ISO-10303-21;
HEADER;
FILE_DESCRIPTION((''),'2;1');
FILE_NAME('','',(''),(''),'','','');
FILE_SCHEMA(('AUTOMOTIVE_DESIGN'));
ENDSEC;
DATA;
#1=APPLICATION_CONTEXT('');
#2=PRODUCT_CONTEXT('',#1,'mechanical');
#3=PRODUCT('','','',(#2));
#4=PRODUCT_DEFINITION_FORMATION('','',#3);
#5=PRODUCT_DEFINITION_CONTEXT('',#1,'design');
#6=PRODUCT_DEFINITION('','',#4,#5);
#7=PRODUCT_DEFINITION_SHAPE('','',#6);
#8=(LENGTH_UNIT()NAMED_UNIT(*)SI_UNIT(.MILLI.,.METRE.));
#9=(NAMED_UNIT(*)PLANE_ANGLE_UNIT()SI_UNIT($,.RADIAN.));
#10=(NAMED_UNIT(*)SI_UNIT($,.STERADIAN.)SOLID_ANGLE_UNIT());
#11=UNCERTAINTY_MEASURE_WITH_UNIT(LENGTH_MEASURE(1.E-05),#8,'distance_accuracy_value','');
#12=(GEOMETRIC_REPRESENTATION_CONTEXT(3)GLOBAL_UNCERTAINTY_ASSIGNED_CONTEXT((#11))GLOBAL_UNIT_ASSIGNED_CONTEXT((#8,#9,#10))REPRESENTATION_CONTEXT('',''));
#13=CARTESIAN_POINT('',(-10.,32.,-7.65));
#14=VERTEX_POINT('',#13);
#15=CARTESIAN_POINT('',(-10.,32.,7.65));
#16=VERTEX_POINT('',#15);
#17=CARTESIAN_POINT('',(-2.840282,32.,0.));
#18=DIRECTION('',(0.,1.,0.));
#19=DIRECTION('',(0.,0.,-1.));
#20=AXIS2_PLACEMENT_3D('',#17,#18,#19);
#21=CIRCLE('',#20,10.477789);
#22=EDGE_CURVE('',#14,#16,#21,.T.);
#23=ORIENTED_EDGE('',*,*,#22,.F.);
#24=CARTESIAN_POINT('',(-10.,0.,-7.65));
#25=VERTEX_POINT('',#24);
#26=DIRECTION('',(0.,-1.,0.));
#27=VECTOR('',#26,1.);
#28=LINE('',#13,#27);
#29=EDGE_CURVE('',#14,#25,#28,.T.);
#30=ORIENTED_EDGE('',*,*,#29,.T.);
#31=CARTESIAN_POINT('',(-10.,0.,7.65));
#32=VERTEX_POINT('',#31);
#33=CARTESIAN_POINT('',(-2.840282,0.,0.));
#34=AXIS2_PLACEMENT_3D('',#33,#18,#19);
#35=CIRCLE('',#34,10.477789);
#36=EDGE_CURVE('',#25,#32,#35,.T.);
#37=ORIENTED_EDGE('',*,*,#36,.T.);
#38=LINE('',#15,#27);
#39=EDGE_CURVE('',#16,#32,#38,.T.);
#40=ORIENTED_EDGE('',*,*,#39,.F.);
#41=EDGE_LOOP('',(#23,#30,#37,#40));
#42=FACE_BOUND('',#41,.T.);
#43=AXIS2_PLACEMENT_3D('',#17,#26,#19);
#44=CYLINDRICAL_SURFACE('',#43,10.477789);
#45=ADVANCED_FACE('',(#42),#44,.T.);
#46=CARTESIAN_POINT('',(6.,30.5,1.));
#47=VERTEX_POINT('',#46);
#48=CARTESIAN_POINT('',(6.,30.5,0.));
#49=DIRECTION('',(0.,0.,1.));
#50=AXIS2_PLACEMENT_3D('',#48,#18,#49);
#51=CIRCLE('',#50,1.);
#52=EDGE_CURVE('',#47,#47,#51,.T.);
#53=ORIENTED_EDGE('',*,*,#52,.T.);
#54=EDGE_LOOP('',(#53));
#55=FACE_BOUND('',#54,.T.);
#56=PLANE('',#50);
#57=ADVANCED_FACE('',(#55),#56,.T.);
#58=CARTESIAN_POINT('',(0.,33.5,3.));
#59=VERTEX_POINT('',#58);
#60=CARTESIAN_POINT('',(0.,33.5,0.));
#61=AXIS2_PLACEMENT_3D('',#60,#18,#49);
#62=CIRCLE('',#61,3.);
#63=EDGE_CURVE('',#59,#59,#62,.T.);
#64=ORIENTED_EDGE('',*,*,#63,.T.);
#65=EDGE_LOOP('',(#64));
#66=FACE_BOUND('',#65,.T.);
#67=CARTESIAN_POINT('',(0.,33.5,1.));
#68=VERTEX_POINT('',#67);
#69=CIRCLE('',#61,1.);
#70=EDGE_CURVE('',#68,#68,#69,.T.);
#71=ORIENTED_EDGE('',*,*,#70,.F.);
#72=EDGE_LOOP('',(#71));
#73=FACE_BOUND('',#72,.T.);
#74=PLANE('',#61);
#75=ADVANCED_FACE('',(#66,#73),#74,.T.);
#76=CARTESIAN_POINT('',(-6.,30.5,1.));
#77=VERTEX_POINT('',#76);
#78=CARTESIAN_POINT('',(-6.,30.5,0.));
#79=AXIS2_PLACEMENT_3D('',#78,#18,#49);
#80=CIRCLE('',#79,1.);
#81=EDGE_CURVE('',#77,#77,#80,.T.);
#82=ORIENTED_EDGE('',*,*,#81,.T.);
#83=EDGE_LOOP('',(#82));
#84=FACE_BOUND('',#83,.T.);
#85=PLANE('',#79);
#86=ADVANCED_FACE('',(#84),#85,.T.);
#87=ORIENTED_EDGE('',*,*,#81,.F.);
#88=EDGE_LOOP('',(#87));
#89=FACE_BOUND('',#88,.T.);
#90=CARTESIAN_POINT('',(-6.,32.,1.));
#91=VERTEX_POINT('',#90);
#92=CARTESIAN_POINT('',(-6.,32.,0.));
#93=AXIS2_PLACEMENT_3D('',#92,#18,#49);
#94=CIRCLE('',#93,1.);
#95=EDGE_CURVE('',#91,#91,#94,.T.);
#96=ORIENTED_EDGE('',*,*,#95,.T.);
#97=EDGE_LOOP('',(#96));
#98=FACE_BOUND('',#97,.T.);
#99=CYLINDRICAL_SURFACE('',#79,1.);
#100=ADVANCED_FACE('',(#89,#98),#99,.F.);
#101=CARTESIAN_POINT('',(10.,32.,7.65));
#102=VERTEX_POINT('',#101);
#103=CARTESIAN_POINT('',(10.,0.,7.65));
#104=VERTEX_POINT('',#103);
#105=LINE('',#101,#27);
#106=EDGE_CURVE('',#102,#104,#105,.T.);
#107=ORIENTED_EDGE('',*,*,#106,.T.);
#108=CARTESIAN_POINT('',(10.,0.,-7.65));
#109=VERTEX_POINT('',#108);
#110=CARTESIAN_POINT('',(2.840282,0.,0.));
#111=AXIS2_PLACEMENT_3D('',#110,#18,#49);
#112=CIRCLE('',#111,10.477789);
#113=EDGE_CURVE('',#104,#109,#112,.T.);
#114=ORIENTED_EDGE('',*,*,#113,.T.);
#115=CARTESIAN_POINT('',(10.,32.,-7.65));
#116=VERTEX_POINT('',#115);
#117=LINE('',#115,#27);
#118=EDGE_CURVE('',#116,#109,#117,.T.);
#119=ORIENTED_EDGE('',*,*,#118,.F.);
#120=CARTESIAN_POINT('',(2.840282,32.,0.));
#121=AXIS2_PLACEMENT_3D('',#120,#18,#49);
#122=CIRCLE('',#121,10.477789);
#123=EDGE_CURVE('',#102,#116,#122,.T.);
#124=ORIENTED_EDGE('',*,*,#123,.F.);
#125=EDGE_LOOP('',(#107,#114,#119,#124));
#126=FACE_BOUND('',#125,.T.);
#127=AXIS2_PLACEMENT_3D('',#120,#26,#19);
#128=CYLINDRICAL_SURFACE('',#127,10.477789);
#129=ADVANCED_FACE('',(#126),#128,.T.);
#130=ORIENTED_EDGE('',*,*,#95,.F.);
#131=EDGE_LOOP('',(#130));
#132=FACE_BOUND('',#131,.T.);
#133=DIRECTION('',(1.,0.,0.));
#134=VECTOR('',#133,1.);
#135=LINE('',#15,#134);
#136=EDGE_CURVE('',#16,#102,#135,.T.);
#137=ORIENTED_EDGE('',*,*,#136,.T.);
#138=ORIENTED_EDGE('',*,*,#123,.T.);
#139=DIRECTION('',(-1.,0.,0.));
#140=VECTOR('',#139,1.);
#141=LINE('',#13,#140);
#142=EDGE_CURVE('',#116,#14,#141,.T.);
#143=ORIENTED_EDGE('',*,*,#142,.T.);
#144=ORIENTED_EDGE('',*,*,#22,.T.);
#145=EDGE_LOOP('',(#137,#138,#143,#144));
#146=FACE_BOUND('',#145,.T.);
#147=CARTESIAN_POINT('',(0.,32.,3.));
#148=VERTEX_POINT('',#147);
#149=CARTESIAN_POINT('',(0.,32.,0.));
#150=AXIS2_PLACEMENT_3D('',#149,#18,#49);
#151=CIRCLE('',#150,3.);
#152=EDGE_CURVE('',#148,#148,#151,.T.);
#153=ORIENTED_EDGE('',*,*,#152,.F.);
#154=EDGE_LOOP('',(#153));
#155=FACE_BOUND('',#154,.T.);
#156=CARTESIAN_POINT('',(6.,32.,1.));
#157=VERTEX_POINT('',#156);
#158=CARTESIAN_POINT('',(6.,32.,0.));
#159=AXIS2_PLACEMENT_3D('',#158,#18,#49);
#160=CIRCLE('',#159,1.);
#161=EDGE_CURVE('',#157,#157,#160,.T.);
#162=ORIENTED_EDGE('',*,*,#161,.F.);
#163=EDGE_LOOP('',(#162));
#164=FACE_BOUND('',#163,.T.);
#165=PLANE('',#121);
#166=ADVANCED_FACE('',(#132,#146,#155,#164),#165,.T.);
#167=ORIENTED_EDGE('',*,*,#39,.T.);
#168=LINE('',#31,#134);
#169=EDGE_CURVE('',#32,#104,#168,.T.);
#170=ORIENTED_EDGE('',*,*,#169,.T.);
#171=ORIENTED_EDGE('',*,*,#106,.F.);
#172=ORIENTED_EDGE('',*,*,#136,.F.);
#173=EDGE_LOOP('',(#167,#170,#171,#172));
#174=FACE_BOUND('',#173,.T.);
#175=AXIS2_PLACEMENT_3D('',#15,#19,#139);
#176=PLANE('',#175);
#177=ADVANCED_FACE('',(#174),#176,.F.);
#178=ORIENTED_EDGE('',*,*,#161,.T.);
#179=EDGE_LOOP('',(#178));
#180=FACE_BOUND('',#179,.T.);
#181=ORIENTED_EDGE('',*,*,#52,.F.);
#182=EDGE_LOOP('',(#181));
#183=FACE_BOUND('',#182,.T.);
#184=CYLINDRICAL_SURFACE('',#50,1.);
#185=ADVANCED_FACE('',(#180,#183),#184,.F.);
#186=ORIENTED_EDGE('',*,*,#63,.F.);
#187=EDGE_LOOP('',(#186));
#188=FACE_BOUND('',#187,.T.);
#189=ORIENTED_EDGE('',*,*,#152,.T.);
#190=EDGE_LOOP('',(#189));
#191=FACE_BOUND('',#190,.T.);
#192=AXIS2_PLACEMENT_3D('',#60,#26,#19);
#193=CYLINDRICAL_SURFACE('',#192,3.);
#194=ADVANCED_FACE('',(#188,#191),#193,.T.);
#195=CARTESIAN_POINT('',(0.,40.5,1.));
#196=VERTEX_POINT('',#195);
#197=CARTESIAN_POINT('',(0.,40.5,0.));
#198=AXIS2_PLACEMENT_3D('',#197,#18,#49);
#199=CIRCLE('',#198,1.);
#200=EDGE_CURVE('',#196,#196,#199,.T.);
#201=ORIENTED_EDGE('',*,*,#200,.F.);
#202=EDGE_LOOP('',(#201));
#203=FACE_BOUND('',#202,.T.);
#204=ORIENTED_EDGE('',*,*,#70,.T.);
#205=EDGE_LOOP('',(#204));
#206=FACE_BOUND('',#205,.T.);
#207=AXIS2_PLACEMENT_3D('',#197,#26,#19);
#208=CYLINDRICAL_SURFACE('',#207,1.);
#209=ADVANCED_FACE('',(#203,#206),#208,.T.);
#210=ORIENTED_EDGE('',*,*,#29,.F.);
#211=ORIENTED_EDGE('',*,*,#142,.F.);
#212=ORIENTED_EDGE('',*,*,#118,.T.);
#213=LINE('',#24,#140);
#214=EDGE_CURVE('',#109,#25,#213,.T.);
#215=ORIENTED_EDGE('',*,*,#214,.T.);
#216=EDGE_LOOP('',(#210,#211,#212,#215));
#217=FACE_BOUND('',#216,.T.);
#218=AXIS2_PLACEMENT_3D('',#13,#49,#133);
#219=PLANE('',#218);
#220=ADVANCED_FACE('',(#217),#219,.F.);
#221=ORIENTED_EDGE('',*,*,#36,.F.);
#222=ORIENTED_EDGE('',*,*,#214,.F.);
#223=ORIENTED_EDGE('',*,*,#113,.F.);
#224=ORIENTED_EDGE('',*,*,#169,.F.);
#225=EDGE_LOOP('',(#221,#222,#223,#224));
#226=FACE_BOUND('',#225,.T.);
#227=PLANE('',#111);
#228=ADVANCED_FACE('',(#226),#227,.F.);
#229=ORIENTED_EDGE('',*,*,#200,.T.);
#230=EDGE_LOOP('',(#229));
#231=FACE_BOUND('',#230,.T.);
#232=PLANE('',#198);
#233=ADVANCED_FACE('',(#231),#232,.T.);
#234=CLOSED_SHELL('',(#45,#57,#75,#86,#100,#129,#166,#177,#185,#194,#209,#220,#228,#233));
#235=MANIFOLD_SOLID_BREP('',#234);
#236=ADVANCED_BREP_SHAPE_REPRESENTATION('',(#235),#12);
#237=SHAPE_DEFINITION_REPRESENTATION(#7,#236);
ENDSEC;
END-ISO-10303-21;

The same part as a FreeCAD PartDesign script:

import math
import FreeCAD as App
import Part
import Sketcher
Q = App.Units.Quantity

doc = App.newDocument("Part")
body = doc.addObject("PartDesign::Body", "Body")

sketch1 = body.newObject("Sketcher::SketchObject", "Sketch")
sketch1.AttachmentSupport = (doc.getObject("XZ_Plane"), [""])
sketch1.MapMode = "FlatFace"
sketch1.addGeometry(Part.LineSegment(App.Vector(10, -7.65, 0), App.Vector(-10, -7.65, 0)), False)
sketch1.addGeometry(Part.ArcOfCircle(Part.Circle(App.Vector(-2.840282, 0, 0), App.Vector(0, 0, 1), 10.477789), math.radians(133.103893), math.radians(226.896107)), False)
sketch1.addGeometry(Part.LineSegment(App.Vector(-10, 7.65, 0), App.Vector(10, 7.65, 0)), False)
sketch1.addGeometry(Part.ArcOfCircle(Part.Circle(App.Vector(2.840282, 0, 0), App.Vector(0, 0, 1), 10.477789), math.radians(-46.896107), math.radians(46.896107)), False)
sketch1.addConstraint(Sketcher.Constraint("Coincident", 0, 2, 1, 2))
sketch1.addConstraint(Sketcher.Constraint("Coincident", 1, 1, 2, 1))
sketch1.addConstraint(Sketcher.Constraint("Coincident", 2, 2, 3, 2))
sketch1.addConstraint(Sketcher.Constraint("Coincident", 3, 1, 0, 1))
sketch1.addConstraint(Sketcher.Constraint("Horizontal", 0))
sketch1.addConstraint(Sketcher.Constraint("Horizontal", 2))
sketch1.addConstraint(Sketcher.Constraint("Equal", 1, 3))
sketch1.addConstraint(Sketcher.Constraint("Symmetric", 1, 3, 3, 3, -1, 1))
sketch1.addConstraint(Sketcher.Constraint("Symmetric", 0, 2, 1, 1, -1))
sketch1.addConstraint(Sketcher.Constraint("DistanceX", 0, 2, 0, 1, Q("20 mm")))
sketch1.addConstraint(Sketcher.Constraint("DistanceY", 0, 2, 1, 1, Q("15.3 mm")))
sketch1.addConstraint(Sketcher.Constraint("Radius", 1, Q("10.477789 mm")))
pad1 = body.newObject("PartDesign::Pad", "Pad")
pad1.Profile = sketch1
pad1.Length = 32
pad1.Reversed = True

sketch2 = body.newObject("Sketcher::SketchObject", "Sketch001")
sketch2.AttachmentSupport = (doc.getObject("XZ_Plane"), [""])
sketch2.MapMode = "FlatFace"
sketch2.AttachmentOffset = App.Placement(App.Vector(0, 0, -32), App.Rotation())
sketch2.addGeometry(Part.Circle(App.Vector(0, 0, 0), App.Vector(0, 0, 1), 3), False)
sketch2.addConstraint(Sketcher.Constraint("Coincident", 0, 3, -1, 1))
sketch2.addConstraint(Sketcher.Constraint("Diameter", 0, Q("6 mm")))
pad2 = body.newObject("PartDesign::Pad", "Pad001")
pad2.Profile = sketch2
pad2.Length = 1.5
pad2.Reversed = True

sketch3 = body.newObject("Sketcher::SketchObject", "Sketch002")
sketch3.AttachmentSupport = (doc.getObject("XZ_Plane"), [""])
sketch3.MapMode = "FlatFace"
sketch3.AttachmentOffset = App.Placement(App.Vector(0, 0, -32), App.Rotation())
sketch3.addGeometry(Part.Circle(App.Vector(-6, 0, 0), App.Vector(0, 0, 1), 1), False)
sketch3.addGeometry(Part.Circle(App.Vector(6, 0, 0), App.Vector(0, 0, 1), 1), False)
sketch3.addConstraint(Sketcher.Constraint("Equal", 0, 1))
sketch3.addConstraint(Sketcher.Constraint("Symmetric", 0, 3, 1, 3, -1, 1))
sketch3.addConstraint(Sketcher.Constraint("PointOnObject", 0, 3, -1))
sketch3.addConstraint(Sketcher.Constraint("Diameter", 0, Q("2 mm")))
sketch3.addConstraint(Sketcher.Constraint("DistanceX", 0, 3, -1, 1, Q("6 mm")))
pocket1 = body.newObject("PartDesign::Pocket", "Pocket")
pocket1.Profile = sketch3
pocket1.Length = 1.5
pocket1.Reversed = True

sketch4 = body.newObject("Sketcher::SketchObject", "Sketch003")
sketch4.AttachmentSupport = (doc.getObject("XZ_Plane"), [""])
sketch4.MapMode = "FlatFace"
sketch4.AttachmentOffset = App.Placement(App.Vector(0, 0, -33.5), App.Rotation())
sketch4.addGeometry(Part.Circle(App.Vector(0, 0, 0), App.Vector(0, 0, 1), 1), False)
sketch4.addConstraint(Sketcher.Constraint("Coincident", 0, 3, -1, 1))
sketch4.addConstraint(Sketcher.Constraint("Diameter", 0, Q("2 mm")))
pad3 = body.newObject("PartDesign::Pad", "Pad002")
pad3.Profile = sketch4
pad3.Length = 7
pad3.Reversed = True

doc.recompute()
